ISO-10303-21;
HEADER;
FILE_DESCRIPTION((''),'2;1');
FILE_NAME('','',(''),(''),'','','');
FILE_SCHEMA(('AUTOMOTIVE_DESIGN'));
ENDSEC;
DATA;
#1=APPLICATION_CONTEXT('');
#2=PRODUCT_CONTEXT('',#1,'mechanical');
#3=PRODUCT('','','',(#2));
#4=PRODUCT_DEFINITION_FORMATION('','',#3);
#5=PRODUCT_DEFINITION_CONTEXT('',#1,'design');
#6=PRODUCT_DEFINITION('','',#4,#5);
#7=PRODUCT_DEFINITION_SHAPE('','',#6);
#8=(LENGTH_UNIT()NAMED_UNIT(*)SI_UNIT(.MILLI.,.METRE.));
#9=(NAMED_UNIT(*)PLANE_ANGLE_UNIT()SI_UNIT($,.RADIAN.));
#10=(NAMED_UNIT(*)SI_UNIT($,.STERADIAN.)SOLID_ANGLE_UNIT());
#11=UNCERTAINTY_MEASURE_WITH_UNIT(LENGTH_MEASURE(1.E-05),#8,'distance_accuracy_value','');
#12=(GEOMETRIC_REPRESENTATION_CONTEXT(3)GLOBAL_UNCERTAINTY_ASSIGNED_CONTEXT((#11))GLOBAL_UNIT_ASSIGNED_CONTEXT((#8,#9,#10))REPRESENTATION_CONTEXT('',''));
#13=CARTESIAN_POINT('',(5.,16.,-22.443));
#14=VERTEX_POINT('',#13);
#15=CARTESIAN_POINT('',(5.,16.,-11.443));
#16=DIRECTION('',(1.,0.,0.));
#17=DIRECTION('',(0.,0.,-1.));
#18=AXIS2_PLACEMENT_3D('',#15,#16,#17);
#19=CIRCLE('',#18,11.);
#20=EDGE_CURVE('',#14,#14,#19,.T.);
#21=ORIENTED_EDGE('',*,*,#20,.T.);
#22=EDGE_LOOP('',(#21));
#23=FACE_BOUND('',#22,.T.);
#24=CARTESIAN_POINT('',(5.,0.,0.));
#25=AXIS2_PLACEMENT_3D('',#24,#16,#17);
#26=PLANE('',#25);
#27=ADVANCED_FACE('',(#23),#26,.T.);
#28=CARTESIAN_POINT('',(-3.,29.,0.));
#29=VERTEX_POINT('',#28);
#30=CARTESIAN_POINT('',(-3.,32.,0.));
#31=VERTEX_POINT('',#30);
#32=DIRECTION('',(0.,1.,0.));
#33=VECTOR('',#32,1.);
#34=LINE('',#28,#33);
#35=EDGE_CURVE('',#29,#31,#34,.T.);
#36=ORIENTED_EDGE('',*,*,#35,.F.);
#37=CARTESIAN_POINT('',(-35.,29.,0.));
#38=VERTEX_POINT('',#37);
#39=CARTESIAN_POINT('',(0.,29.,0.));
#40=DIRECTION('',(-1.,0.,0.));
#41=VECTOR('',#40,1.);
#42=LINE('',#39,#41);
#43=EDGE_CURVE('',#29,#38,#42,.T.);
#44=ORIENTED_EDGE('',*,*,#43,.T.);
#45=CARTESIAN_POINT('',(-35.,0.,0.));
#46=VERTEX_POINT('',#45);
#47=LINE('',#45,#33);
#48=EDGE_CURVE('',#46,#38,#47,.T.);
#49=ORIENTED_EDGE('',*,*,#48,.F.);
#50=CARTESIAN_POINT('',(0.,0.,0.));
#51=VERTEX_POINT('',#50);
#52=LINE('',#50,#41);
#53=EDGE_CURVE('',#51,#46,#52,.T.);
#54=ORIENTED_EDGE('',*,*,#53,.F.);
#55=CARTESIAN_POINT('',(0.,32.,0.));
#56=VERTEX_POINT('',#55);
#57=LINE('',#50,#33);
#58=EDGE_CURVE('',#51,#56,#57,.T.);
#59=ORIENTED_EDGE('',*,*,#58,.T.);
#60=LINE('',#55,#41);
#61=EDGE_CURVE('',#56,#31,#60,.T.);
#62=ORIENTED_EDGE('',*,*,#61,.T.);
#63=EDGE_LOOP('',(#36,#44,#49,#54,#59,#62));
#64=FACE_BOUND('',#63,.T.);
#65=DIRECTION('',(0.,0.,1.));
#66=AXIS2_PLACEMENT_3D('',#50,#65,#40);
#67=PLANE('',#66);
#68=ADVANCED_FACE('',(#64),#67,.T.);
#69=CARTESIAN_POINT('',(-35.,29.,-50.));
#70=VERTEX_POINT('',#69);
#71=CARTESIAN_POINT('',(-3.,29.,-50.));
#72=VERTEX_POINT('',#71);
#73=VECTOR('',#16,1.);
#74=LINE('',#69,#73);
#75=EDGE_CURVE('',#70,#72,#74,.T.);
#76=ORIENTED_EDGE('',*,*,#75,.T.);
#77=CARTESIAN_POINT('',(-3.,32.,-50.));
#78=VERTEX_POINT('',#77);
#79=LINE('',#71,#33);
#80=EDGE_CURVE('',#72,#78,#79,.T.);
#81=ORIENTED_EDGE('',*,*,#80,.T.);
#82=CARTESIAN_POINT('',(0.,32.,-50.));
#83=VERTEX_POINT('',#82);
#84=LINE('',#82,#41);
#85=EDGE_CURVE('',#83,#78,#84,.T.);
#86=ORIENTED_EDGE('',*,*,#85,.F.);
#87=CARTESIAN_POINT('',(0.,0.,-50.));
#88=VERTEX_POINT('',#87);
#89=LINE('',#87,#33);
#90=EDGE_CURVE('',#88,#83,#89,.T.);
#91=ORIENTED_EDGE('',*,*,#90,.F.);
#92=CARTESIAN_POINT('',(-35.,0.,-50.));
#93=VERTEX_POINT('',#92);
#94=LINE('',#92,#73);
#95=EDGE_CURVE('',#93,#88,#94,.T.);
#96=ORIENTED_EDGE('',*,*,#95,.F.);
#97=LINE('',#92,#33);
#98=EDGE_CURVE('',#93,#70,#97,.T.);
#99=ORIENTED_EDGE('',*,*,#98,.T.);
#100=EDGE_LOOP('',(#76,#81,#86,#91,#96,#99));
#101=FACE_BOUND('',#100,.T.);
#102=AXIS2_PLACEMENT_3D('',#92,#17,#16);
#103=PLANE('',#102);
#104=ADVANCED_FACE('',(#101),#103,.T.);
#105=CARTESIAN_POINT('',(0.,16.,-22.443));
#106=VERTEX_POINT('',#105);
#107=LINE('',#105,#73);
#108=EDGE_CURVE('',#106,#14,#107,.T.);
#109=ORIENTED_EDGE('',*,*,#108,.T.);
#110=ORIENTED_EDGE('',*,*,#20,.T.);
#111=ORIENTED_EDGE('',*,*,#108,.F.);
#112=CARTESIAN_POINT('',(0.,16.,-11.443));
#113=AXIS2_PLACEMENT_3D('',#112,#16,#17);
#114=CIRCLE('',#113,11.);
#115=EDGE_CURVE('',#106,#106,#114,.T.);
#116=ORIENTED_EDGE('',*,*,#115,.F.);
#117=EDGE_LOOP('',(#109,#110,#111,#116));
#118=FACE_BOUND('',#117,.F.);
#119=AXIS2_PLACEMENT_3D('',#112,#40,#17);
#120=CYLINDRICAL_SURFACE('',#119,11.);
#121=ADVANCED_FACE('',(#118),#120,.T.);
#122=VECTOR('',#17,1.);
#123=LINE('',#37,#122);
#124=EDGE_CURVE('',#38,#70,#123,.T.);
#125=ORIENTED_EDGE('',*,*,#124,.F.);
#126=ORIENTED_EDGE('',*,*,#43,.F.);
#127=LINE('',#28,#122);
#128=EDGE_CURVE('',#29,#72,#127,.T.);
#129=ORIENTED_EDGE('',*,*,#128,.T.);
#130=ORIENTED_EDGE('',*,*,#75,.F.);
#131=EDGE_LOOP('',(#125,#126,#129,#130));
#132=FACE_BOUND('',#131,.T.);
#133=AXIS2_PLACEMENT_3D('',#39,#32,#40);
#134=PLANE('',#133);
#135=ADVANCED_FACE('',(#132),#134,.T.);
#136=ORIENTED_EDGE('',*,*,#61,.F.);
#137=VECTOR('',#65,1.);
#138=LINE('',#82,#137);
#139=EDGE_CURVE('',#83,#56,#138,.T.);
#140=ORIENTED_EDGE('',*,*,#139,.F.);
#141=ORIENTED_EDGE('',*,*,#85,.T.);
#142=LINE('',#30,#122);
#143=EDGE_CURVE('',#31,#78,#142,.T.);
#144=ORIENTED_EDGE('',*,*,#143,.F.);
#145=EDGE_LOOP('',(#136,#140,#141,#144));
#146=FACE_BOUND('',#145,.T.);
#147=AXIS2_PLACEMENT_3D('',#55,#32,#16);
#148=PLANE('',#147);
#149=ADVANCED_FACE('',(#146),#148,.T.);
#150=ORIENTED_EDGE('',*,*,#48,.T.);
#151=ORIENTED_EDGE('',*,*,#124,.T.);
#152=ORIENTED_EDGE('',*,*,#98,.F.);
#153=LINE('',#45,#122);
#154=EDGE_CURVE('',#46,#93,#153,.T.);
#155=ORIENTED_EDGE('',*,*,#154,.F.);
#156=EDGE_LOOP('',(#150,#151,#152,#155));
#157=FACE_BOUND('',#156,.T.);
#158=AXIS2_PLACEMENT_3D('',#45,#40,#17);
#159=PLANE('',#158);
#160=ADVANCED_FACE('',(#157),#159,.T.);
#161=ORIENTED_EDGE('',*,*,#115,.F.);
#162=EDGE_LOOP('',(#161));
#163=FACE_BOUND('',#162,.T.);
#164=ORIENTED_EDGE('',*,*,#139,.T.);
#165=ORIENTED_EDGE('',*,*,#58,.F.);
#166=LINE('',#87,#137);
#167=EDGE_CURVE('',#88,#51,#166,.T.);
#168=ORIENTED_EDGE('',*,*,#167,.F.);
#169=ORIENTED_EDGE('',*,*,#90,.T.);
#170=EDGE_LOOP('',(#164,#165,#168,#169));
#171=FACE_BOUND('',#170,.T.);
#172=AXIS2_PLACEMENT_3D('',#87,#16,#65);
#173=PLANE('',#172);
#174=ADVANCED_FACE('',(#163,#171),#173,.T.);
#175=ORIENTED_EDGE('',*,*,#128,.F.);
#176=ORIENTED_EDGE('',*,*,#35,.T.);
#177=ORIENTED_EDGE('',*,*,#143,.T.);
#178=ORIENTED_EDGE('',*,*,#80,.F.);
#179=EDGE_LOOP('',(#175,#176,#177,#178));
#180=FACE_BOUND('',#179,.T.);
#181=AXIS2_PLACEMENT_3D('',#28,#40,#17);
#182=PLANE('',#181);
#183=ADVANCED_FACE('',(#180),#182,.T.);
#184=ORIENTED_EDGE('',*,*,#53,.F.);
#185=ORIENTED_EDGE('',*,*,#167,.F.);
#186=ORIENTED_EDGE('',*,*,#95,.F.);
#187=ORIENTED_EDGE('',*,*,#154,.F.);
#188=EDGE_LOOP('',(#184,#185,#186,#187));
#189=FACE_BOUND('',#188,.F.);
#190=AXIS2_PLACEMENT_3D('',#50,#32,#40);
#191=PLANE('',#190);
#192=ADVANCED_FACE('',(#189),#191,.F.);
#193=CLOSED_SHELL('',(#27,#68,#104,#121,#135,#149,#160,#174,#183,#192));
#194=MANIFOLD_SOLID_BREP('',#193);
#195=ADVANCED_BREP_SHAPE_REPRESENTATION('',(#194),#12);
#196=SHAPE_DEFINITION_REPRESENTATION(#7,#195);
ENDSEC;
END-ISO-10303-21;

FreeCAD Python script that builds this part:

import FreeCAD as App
import Part
import Sketcher
from FreeCAD import Vector
Q = App.Units.Quantity


def add_polygon(sketch, points):
    """Adds a closed chain of lines whose ends are joined by coincident constraints."""
    first, n = sketch.GeometryCount, len(points)
    for a, b in zip(points, points[1:] + points[:1]):
        sketch.addGeometry(Part.LineSegment(App.Vector(*a, 0), App.Vector(*b, 0)), False)
    for i in range(n):
        sketch.addConstraint(Sketcher.Constraint("Coincident", first + i, 2, first + (i + 1) % n, 1))

doc = App.newDocument("Part")
body = doc.addObject("PartDesign::Body", "Body")

sketch1 = body.newObject("Sketcher::SketchObject", "Sketch")
sketch1.AttachmentSupport = (doc.getObject("XZ_Plane"), [""])
sketch1.MapMode = "FlatFace"
add_polygon(sketch1, [(-35, 0), (0, 0), (0, -50), (-35, -50)])
sketch1.addConstraint([
    Sketcher.Constraint("Horizontal", 0),
    Sketcher.Constraint("Vertical", 1),
    Sketcher.Constraint("Horizontal", 2),
    Sketcher.Constraint("Vertical", 3),
    Sketcher.Constraint("Coincident", 0, 2, -1, 1),
    Sketcher.Constraint("DistanceX", 0, 1, 0, 2, Q("35 mm")),
    Sketcher.Constraint("DistanceY", 1, 2, 1, 1, Q("50 mm")),
])
pad1 = body.newObject("PartDesign::Pad", "Pad")
pad1.Profile = sketch1
pad1.Length = 29
pad1.Reversed = True

sketch2 = body.newObject("Sketcher::SketchObject", "Sketch001")
sketch2.AttachmentSupport = (doc.getObject("XZ_Plane"), [""])
sketch2.MapMode = "FlatFace"
sketch2.AttachmentOffset = App.Placement(Vector(0, 0, -29), App.Rotation())
add_polygon(sketch2, [(0, 0), (0, -50), (-3, -50), (-3, 0)])
sketch2.addConstraint([
    Sketcher.Constraint("Vertical", 0),
    Sketcher.Constraint("Horizontal", 1),
    Sketcher.Constraint("Vertical", 2),
    Sketcher.Constraint("Horizontal", 3),
    Sketcher.Constraint("Coincident", 3, 2, -1, 1),
    Sketcher.Constraint("DistanceX", 1, 2, 1, 1, Q("3 mm")),
    Sketcher.Constraint("DistanceY", 0, 2, 0, 1, Q("50 mm")),
])
pad2 = body.newObject("PartDesign::Pad", "Pad001")
pad2.Profile = sketch2
pad2.Length = 3
pad2.Reversed = True

sketch3 = body.newObject("Sketcher::SketchObject", "Sketch002")
sketch3.AttachmentSupport = (doc.getObject("YZ_Plane"), [""])
sketch3.MapMode = "FlatFace"
sketch3.addGeometry(Part.Circle(Vector(16, -11.443, 0), Vector(0, 0, 1), 11), False)
sketch3.addConstraint([
    Sketcher.Constraint("Diameter", 0, Q("22 mm")),
    Sketcher.Constraint("DistanceX", -1, 1, 0, 3, Q("16 mm")),
    Sketcher.Constraint("DistanceY", 0, 3, -1, 1, Q("11.443 mm")),
])
pad3 = body.newObject("PartDesign::Pad", "Pad002")
pad3.Profile = sketch3
pad3.Length = 5

doc.recompute()
